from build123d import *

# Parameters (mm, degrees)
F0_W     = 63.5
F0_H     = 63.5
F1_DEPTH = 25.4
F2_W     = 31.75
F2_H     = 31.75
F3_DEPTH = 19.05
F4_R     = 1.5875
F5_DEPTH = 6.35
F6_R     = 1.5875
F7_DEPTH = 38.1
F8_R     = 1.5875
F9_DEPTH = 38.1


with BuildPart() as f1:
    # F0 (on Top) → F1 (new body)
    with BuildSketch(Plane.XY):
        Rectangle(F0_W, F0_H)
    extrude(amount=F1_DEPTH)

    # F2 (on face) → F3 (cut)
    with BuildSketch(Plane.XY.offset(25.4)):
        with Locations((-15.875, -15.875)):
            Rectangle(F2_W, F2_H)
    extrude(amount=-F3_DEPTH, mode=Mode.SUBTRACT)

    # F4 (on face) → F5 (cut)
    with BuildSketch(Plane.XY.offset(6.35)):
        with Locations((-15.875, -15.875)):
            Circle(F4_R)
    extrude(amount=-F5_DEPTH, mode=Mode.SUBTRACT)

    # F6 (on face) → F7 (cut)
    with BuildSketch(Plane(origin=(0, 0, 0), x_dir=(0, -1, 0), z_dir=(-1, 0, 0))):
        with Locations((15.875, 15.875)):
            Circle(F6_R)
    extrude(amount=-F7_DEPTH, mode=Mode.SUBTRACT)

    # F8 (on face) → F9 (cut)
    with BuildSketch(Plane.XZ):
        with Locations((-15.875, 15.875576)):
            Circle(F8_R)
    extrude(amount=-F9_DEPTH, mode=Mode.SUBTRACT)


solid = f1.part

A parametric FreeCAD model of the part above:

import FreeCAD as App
import Part
import Sketcher
Q = App.Units.Quantity


def add_polygon(sketch, points):
    """Adds a closed chain of lines whose ends are joined by coincident constraints."""
    first, n = sketch.GeometryCount, len(points)
    for a, b in zip(points, points[1:] + points[:1]):
        sketch.addGeometry(Part.LineSegment(App.Vector(*a, 0), App.Vector(*b, 0)), False)
    for i in range(n):
        sketch.addConstraint(Sketcher.Constraint("Coincident", first + i, 2, first + (i + 1) % n, 1))

doc = App.newDocument("Part")
params = doc.addObject("Spreadsheet::Sheet", "Params")
for row, (alias, value) in enumerate([
    ("sketch1_width", "2.5 in"),
    ("pad1_length", "1 in"),
    ("sketch2_width", "1.25 in"),
    ("pocket1_length", "0.75 in"),
    ("sketch3_diameter", "0.125 in"),
    ("pocket2_length", "0.25 in"),
    ("sketch4_diameter", "0.125 in"),
    ("pocket3_length", "1.5 in"),
    ("sketch5_diameter", "0.125 in"),
    ("pocket4_length", "1.5 in"),
], start=1):
    params.set(f"A{row}", alias)
    params.set(f"B{row}", "=" + value)
    params.setAlias(f"B{row}", alias)

body = doc.addObject("PartDesign::Body", "Body")

# Sketch on XY plane
sketch1 = body.newObject("Sketcher::SketchObject", "Sketch")
sketch1.AttachmentSupport = (doc.getObject("XY_Plane"), [""])
sketch1.MapMode = "FlatFace"
add_polygon(sketch1, [(-32, 32), (-32, -32), (32, -32), (32, 32)])  # lines 0-3
sketch1.addConstraint(Sketcher.Constraint("Vertical", 0))
sketch1.addConstraint(Sketcher.Constraint("Horizontal", 1))
sketch1.addConstraint(Sketcher.Constraint("Vertical", 2))
sketch1.addConstraint(Sketcher.Constraint("Horizontal", 3))
sketch1.addConstraint(Sketcher.Constraint("Symmetric", 0, 2, 2, 2, -1, 1))
sketch1.addConstraint(Sketcher.Constraint("Equal", 3, 0))
sketch1.addConstraint(Sketcher.Constraint("DistanceX", 1, 1, 1, 2, Q("2.5 in")))
sketch1.setExpression("Constraints[10]", "Params.sketch1_width")
pad1 = body.newObject("PartDesign::Pad", "Pad")
pad1.Profile = sketch1
pad1.setExpression("Length", "Params.pad1_length")

# Sketch on XY plane
sketch2 = body.newObject("Sketcher::SketchObject", "Sketch001")
sketch2.AttachmentSupport = (doc.getObject("XY_Plane"), [""])
sketch2.MapMode = "FlatFace"
sketch2.AttachmentOffset = App.Placement(App.Vector(0, 0, 1 * 25.4), App.Rotation())
add_polygon(sketch2, [(-32, 0), (-32, -32), (0, -32), (0, 0)])  # lines 0-3
sketch2.addConstraint(Sketcher.Constraint("Vertical", 0))
sketch2.addConstraint(Sketcher.Constraint("Horizontal", 1))
sketch2.addConstraint(Sketcher.Constraint("Vertical", 2))
sketch2.addConstraint(Sketcher.Constraint("Horizontal", 3))
sketch2.addConstraint(Sketcher.Constraint("Coincident", 2, 2, -1, 1))
sketch2.addConstraint(Sketcher.Constraint("Equal", 3, 0))
sketch2.addConstraint(Sketcher.Constraint("DistanceX", 1, 1, 1, 2, Q("1.25 in")))
sketch2.setExpression("Constraints[10]", "Params.sketch2_width")
pocket1 = body.newObject("PartDesign::Pocket", "Pocket")
pocket1.Profile = sketch2
pocket1.setExpression("Length", "Params.pocket1_length")

# Sketch on XY plane
sketch3 = body.newObject("Sketcher::SketchObject", "Sketch002")
sketch3.AttachmentSupport = (doc.getObject("XY_Plane"), [""])
sketch3.MapMode = "FlatFace"
sketch3.AttachmentOffset = App.Placement(App.Vector(0, 0, 0.25 * 25.4), App.Rotation())
sketch3.addGeometry(Part.Circle(App.Vector(-15.9, -15.9, 0), App.Vector(0, 0, 1), 1.6), False)
sketch3.addConstraint(Sketcher.Constraint("Diameter", 0, Q("0.125 in")))
sketch3.addConstraint(Sketcher.Constraint("DistanceX", 0, 3, -1, 1, Q("0.625 in")))
sketch3.addConstraint(Sketcher.Constraint("DistanceY", 0, 3, -1, 1, Q("0.625 in")))
sketch3.setExpression("Constraints[0]", "Params.sketch3_diameter")
pocket2 = body.newObject("PartDesign::Pocket", "Pocket001")
pocket2.Profile = sketch3
pocket2.setExpression("Length", "Params.pocket2_length")

# Sketch on YZ plane
sketch4 = body.newObject("Sketcher::SketchObject", "Sketch003")
sketch4.AttachmentSupport = (doc.getObject("YZ_Plane"), [""])
sketch4.MapMode = "FlatFace"
sketch4.addGeometry(Part.Circle(App.Vector(-15.9, 15.9, 0), App.Vector(0, 0, 1), 1.6), False)
sketch4.addConstraint(Sketcher.Constraint("Diameter", 0, Q("0.125 in")))
sketch4.addConstraint(Sketcher.Constraint("DistanceX", 0, 3, -1, 1, Q("0.625 in")))
sketch4.addConstraint(Sketcher.Constraint("DistanceY", -1, 1, 0, 3, Q("0.625 in")))
sketch4.setExpression("Constraints[0]", "Params.sketch4_diameter")
pocket3 = body.newObject("PartDesign::Pocket", "Pocket002")
pocket3.Profile = sketch4
pocket3.setExpression("Length", "Params.pocket3_length")
pocket3.Reversed = True

# Sketch on XZ plane
sketch5 = body.newObject("Sketcher::SketchObject", "Sketch004")
sketch5.AttachmentSupport = (doc.getObject("XZ_Plane"), [""])
sketch5.MapMode = "FlatFace"
sketch5.addGeometry(Part.Circle(App.Vector(-15.9, 15.9, 0), App.Vector(0, 0, 1), 1.6), False)
sketch5.addConstraint(Sketcher.Constraint("Diameter", 0, Q("0.125 in")))
sketch5.addConstraint(Sketcher.Constraint("DistanceX", 0, 3, -1, 1, Q("0.625 in")))
sketch5.addConstraint(Sketcher.Constraint("DistanceY", -1, 1, 0, 3, Q("15.875576 mm")))
sketch5.setExpression("Constraints[0]", "Params.sketch5_diameter")
pocket4 = body.newObject("PartDesign::Pocket", "Pocket003")
pocket4.Profile = sketch5
pocket4.setExpression("Length", "Params.pocket4_length")

doc.recompute()
